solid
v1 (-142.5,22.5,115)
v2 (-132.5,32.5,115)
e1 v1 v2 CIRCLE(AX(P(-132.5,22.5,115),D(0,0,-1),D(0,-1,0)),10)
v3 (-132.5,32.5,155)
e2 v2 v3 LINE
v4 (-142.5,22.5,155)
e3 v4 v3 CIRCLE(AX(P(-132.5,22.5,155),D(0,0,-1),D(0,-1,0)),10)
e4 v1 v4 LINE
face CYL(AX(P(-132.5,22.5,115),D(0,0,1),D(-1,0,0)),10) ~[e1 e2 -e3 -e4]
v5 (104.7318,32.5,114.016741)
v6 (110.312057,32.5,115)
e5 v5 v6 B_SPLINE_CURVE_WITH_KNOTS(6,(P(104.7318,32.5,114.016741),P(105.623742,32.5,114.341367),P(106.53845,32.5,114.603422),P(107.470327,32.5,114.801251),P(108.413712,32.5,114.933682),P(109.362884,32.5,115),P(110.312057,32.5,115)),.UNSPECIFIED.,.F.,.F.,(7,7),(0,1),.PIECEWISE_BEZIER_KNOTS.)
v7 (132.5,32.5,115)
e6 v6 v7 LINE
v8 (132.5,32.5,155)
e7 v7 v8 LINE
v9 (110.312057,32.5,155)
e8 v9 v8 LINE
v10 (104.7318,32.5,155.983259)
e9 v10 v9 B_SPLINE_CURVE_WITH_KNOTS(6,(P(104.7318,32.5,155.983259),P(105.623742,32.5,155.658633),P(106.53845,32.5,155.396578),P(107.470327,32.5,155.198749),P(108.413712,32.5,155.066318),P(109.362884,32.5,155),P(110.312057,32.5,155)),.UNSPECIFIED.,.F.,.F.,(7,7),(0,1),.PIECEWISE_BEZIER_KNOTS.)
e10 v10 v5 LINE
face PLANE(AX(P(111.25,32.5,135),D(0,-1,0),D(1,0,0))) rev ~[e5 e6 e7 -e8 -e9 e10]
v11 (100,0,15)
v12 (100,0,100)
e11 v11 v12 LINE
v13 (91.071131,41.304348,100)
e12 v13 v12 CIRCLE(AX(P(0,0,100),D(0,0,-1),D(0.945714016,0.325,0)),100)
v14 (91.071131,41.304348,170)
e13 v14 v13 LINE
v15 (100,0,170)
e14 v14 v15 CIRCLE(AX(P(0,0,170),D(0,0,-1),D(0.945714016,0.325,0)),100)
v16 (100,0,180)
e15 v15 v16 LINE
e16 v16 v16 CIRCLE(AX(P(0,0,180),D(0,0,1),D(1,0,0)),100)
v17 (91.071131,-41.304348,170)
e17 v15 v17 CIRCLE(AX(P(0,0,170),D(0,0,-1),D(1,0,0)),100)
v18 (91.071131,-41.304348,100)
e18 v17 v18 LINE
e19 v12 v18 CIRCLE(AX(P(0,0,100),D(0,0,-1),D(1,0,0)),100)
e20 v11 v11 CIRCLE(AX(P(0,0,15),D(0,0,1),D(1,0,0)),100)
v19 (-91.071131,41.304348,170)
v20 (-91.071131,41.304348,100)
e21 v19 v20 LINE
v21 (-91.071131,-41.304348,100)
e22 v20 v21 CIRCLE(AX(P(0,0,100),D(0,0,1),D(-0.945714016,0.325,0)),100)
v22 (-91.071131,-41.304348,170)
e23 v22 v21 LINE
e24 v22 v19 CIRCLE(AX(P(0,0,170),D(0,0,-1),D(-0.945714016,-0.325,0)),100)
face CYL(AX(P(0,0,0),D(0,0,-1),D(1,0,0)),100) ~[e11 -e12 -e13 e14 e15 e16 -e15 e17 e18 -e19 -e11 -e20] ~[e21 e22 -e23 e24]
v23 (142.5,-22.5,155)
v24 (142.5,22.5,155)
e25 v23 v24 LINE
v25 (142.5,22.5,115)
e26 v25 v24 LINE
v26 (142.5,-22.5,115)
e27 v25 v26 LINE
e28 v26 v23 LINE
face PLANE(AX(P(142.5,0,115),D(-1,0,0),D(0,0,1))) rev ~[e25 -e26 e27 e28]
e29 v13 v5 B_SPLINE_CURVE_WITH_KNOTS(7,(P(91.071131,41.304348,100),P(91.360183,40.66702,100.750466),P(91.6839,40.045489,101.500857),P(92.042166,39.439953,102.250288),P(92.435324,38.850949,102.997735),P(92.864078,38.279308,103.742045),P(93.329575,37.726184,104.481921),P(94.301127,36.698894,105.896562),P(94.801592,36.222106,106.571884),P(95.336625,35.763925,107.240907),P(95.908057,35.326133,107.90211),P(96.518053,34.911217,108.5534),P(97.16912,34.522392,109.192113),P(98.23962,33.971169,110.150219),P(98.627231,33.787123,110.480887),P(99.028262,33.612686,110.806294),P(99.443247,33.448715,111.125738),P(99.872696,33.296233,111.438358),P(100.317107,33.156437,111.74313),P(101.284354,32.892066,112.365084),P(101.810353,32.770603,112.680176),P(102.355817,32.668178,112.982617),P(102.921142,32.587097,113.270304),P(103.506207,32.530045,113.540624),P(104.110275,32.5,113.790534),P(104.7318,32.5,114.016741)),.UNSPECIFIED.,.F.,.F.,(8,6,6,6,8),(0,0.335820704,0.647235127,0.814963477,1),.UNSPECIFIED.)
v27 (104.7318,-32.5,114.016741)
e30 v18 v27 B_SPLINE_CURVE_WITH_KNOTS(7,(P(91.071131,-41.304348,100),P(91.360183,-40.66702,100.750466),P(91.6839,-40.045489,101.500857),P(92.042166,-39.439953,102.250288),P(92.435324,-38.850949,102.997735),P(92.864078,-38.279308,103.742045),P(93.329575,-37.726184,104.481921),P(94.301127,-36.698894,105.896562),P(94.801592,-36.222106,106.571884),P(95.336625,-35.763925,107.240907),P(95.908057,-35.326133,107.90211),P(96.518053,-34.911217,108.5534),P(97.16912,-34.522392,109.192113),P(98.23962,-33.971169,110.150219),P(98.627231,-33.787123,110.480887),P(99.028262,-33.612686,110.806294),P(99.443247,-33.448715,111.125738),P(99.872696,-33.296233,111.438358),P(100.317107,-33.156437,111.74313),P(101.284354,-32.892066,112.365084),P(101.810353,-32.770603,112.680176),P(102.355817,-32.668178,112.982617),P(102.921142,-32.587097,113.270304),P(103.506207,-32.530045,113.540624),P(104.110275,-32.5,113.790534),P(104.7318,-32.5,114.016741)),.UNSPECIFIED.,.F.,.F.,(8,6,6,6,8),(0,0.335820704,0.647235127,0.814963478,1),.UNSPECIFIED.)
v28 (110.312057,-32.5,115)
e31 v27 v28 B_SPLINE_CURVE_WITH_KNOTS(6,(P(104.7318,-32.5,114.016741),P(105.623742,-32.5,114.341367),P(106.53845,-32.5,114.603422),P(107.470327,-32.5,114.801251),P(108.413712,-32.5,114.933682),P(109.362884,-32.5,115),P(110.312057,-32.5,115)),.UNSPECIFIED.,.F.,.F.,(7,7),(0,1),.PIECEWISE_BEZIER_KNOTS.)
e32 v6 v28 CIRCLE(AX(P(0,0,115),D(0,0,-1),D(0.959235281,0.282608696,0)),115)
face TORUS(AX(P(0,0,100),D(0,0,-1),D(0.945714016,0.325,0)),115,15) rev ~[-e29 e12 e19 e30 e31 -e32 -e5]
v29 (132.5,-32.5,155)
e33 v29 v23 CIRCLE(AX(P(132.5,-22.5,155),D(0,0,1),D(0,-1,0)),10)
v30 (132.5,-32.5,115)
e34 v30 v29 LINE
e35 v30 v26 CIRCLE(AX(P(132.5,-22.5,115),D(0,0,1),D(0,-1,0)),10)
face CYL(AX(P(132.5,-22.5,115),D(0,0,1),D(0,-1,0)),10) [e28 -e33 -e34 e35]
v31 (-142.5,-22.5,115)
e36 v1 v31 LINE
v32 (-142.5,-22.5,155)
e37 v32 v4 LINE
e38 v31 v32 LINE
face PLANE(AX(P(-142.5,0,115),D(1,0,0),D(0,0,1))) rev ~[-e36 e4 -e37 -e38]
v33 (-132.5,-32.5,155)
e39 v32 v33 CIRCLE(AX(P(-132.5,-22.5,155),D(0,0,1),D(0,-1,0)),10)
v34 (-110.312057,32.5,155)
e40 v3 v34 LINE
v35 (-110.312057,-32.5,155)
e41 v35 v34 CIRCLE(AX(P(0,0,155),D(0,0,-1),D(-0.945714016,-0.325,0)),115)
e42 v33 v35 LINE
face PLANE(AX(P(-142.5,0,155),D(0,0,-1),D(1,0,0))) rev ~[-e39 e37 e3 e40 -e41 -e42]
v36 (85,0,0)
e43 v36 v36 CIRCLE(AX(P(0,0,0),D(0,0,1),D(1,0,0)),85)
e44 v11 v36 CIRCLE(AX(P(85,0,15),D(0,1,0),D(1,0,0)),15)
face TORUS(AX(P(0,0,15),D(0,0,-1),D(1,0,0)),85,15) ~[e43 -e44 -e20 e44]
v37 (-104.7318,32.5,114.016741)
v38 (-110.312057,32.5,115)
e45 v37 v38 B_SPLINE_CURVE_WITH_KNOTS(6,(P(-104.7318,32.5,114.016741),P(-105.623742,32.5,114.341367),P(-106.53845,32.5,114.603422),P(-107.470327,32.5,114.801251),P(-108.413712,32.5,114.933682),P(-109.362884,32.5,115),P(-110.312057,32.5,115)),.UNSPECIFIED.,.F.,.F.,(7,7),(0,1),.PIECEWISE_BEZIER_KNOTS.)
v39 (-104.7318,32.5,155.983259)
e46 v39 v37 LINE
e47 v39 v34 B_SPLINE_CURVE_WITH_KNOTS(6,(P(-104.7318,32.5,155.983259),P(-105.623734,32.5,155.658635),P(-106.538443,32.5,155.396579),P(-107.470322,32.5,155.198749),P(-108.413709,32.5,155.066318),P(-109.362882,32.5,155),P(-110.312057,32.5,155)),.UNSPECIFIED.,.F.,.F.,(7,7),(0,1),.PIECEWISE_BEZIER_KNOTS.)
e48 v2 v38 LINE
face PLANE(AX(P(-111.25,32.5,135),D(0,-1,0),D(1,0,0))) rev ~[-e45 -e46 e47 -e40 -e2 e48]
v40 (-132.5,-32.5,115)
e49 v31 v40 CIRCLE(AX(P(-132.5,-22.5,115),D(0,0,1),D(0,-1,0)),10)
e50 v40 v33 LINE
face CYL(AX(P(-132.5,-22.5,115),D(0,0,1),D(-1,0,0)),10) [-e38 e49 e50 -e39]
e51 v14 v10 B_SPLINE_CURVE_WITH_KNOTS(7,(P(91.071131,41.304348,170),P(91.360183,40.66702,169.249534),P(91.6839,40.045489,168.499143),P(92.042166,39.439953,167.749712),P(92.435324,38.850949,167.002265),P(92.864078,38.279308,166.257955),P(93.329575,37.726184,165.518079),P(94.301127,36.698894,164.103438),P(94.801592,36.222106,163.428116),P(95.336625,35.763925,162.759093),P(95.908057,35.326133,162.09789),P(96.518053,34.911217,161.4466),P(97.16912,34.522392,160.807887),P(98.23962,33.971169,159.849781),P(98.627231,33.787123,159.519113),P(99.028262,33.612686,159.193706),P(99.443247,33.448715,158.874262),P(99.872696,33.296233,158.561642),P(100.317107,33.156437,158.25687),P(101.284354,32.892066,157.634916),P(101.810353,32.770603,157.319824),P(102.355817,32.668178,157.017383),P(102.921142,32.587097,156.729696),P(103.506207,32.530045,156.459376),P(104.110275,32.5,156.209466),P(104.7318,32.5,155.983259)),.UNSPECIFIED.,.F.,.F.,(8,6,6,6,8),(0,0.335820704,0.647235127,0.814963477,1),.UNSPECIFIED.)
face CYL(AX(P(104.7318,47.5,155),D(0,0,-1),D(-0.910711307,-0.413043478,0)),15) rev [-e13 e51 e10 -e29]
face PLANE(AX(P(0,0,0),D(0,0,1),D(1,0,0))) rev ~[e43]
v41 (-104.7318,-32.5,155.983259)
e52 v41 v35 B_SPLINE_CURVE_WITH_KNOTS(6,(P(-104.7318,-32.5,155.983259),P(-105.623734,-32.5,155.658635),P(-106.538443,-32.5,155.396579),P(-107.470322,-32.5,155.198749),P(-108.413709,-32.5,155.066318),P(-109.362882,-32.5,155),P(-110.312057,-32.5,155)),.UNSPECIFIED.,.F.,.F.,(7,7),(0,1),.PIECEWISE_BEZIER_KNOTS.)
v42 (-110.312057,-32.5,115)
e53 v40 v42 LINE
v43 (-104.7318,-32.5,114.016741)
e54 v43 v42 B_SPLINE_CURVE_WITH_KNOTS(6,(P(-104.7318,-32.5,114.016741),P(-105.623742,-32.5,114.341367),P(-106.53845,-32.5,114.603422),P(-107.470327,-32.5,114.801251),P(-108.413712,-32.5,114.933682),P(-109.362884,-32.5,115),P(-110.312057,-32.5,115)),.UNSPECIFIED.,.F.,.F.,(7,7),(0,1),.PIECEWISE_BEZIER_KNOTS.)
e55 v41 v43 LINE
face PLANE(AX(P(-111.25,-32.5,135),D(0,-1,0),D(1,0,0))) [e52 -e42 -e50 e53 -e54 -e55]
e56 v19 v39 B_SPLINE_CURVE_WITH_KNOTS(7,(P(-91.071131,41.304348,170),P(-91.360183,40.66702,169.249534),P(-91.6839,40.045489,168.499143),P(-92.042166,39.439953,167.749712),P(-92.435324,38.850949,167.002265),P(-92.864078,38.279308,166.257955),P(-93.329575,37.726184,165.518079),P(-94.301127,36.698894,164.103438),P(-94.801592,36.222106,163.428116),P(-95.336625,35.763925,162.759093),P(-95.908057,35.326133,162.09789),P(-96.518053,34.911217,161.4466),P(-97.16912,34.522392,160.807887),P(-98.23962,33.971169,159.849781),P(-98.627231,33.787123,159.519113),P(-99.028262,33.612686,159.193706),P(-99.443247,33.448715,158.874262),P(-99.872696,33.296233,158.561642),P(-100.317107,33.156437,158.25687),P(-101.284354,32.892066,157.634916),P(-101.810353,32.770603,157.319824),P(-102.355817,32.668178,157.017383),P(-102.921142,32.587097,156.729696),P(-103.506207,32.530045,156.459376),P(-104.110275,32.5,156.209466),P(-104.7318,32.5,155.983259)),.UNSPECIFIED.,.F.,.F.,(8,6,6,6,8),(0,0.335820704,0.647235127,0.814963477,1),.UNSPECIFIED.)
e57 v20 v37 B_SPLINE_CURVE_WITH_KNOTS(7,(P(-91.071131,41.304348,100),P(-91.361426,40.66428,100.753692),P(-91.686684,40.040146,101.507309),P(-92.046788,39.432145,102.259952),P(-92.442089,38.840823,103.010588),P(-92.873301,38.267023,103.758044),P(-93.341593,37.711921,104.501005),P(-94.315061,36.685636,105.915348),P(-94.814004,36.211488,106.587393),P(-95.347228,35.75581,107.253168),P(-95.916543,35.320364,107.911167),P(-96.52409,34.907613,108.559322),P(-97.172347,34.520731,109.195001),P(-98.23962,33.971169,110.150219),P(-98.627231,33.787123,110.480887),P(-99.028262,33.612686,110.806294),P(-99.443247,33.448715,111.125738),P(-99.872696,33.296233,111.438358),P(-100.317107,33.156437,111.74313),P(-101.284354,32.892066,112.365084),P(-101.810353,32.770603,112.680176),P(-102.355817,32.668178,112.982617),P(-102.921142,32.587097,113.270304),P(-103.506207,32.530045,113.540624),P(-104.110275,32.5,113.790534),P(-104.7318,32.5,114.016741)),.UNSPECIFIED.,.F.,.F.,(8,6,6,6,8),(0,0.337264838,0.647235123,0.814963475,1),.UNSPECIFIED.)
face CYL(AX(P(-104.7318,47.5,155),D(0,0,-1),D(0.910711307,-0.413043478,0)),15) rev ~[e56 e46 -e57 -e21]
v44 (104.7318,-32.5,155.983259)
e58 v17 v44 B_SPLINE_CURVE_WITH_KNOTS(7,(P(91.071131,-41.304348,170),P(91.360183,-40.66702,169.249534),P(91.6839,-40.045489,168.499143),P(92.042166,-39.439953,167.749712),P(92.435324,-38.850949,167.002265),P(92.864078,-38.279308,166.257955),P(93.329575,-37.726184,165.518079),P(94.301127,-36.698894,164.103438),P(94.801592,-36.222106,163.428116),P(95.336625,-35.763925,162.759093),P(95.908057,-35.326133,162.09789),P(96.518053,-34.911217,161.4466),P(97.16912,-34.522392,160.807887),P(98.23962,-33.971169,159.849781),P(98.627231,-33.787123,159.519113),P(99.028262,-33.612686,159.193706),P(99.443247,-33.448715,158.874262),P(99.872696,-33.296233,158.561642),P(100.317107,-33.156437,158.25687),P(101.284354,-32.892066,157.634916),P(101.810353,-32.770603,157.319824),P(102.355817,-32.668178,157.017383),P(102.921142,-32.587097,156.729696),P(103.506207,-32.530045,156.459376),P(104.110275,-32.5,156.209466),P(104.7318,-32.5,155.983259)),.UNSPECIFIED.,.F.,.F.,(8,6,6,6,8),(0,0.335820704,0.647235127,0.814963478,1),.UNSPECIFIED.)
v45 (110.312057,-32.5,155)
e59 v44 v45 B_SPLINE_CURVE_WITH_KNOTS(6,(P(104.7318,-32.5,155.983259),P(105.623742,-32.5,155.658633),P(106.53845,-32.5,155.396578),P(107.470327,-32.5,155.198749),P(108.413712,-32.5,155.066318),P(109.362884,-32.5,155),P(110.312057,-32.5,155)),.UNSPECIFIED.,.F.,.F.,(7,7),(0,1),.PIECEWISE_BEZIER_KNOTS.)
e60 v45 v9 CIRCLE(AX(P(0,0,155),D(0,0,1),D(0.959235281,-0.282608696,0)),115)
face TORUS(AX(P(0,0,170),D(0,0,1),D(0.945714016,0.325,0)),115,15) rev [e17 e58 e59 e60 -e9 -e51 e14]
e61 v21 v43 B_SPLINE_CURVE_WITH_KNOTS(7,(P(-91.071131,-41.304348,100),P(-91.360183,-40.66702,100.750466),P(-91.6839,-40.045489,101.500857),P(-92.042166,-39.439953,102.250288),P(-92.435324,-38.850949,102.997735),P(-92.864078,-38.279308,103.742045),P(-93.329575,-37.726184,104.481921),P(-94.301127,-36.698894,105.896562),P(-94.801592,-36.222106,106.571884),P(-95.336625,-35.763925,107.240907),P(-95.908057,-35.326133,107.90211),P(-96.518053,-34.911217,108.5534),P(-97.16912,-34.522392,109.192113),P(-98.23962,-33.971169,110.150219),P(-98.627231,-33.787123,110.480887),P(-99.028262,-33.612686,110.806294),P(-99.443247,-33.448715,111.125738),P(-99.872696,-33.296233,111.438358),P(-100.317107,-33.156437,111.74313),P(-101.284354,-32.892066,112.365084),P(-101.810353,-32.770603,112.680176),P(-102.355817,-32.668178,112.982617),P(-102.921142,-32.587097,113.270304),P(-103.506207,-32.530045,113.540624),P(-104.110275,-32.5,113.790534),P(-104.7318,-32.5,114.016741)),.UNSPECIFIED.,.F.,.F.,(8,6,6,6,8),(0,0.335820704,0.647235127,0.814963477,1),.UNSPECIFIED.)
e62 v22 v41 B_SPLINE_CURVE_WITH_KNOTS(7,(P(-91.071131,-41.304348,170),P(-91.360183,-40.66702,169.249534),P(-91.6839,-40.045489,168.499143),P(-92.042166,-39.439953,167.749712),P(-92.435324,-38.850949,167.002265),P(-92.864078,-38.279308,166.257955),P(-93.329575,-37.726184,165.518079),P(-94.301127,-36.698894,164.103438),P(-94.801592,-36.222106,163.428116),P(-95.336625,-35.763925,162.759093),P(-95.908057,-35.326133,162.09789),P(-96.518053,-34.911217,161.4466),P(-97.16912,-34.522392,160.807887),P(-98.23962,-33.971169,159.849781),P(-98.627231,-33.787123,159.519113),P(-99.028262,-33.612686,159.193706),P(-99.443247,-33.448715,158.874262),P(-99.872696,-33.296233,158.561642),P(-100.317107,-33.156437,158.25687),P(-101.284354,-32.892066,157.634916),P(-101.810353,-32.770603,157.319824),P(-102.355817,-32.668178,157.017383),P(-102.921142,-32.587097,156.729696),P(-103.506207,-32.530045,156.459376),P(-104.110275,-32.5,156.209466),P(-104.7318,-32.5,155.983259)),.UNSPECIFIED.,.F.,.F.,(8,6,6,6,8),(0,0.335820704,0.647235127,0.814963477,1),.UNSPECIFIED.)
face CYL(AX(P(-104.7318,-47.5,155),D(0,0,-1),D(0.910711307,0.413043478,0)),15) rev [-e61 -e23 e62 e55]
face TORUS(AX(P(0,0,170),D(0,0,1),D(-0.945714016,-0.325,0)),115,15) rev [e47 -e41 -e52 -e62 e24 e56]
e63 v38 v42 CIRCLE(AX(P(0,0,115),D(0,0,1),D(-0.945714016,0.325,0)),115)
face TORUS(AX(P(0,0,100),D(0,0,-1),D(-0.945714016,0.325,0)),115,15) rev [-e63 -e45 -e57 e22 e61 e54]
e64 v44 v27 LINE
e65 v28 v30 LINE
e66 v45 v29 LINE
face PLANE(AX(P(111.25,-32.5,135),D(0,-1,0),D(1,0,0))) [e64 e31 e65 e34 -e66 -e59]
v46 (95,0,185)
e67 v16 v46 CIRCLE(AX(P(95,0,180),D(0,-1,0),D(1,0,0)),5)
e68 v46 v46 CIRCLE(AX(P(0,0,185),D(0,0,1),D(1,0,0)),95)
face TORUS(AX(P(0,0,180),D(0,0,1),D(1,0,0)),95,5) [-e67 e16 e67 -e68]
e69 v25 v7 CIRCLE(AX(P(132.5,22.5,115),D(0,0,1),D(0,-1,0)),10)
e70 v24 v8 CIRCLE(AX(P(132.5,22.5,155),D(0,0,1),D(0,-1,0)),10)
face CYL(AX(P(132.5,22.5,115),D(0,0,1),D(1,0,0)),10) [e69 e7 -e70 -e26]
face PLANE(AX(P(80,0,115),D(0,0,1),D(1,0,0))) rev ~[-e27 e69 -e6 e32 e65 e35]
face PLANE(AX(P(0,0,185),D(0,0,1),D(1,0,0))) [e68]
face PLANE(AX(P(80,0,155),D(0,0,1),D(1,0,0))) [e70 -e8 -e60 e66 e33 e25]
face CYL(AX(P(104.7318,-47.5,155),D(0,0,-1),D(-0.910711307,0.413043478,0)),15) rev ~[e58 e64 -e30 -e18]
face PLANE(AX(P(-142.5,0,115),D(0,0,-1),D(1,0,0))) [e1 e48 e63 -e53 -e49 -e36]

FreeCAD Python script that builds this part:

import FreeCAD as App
import Part
import Sketcher


def edges_at(feature, points):
    """Names of the edges that pass closest to the given points."""
    edges = feature.Shape.Edges
    near = lambda p: min(range(len(edges)), key=lambda i: edges[i].distToShape(Part.Vertex(*p))[0])
    return sorted({f"Edge{near(p) + 1}" for p in points})

doc = App.newDocument("Part")
body = doc.addObject("PartDesign::Body", "Body")

# Sketch on XY plane
sketch1 = doc.addObject("Sketcher::SketchObject", "Sketch")
body.addObject(sketch1)
sketch1.AttachmentSupport = (doc.XY_Plane, [""])
sketch1.MapMode = "FlatFace"
sketch1.addGeometry(Part.Circle(App.Vector(0, 0, 0), App.Vector(0, 0, 1), 100), False)
sketch1.addConstraint([
    Sketcher.Constraint("Coincident", 0, 3, -1, 1),
    Sketcher.Constraint("Diameter", 0, 200.0),
])
pad1 = doc.addObject("PartDesign::Pad", "Pad")
body.addObject(pad1)
pad1.Profile = sketch1
pad1.Length = 185

# Sketch on XZ plane
sketch2 = doc.addObject("Sketcher::SketchObject", "Sketch001")
body.addObject(sketch2)
sketch2.AttachmentSupport = (doc.XZ_Plane, [""])
sketch2.MapMode = "FlatFace"
sketch2.addGeometry([
    Part.LineSegment(App.Vector(-142, 155, 0), App.Vector(-142, 115, 0)),  # 0
    Part.LineSegment(App.Vector(-142, 115, 0), App.Vector(-80, 115, 0)),  # 1
    Part.LineSegment(App.Vector(-80, 115, 0), App.Vector(-80, 155, 0)),  # 2
    Part.LineSegment(App.Vector(-80, 155, 0), App.Vector(-142, 155, 0)),  # 3
    Part.LineSegment(App.Vector(80, 155, 0), App.Vector(80, 115, 0)),  # 4
    Part.LineSegment(App.Vector(80, 115, 0), App.Vector(142, 115, 0)),  # 5
    Part.LineSegment(App.Vector(142, 115, 0), App.Vector(142, 155, 0)),  # 6
    Part.LineSegment(App.Vector(142, 155, 0), App.Vector(80, 155, 0)),  # 7
], False)
sketch2.addConstraint([
    Sketcher.Constraint("Coincident", 0, 2, 1, 1),
    Sketcher.Constraint("Coincident", 1, 2, 2, 1),
    Sketcher.Constraint("Coincident", 2, 2, 3, 1),
    Sketcher.Constraint("Coincident", 3, 2, 0, 1),
    Sketcher.Constraint("Coincident", 4, 2, 5, 1),
    Sketcher.Constraint("Coincident", 5, 2, 6, 1),
    Sketcher.Constraint("Coincident", 6, 2, 7, 1),
    Sketcher.Constraint("Coincident", 7, 2, 4, 1),
    Sketcher.Constraint("Vertical", 0),
    Sketcher.Constraint("Horizontal", 1),
    Sketcher.Constraint("Vertical", 2),
    Sketcher.Constraint("Horizontal", 3),
    Sketcher.Constraint("Vertical", 4),
    Sketcher.Constraint("Horizontal", 5),
    Sketcher.Constraint("Vertical", 6),
    Sketcher.Constraint("Horizontal", 7),
    Sketcher.Constraint("Symmetric", 1, 2, 4, 2, -2),
    Sketcher.Constraint("Symmetric", 3, 2, 6, 2, -2),
    Sketcher.Constraint("DistanceY", 0, 2, 0, 1, 40.0),
    Sketcher.Constraint("DistanceX", 1, 1, 1, 2, 62.5),
    Sketcher.Constraint("DistanceY", -1, 1, 0, 2, 115.0),
    Sketcher.Constraint("DistanceX", 1, 2, -1, 1, 80.0),
])
pad2 = doc.addObject("PartDesign::Pad", "Pad001")
body.addObject(pad2)
pad2.Profile = sketch2
pad2.Type = "TwoLengths"
pad2.Length = 32.5
pad2.Length2 = 32.5
doc.recompute()

fillet = doc.addObject("PartDesign::Fillet", "Fillet")
body.addObject(fillet)
fillet.Base = (pad2, edges_at(pad2, [
    (-142.5, -32.5, 135),
    (-142.5, 32.5, 135),
    (142.5, -32.5, 135),
    (142.5, 32.5, 135),
]))
fillet.Radius = 10
doc.recompute()

fillet2 = doc.addObject("PartDesign::Fillet", "Fillet001")
body.addObject(fillet2)
fillet2.Base = (fillet, edges_at(fillet, [(-100, 0, 185)]))
fillet2.Radius = 5
doc.recompute()

fillet3 = doc.addObject("PartDesign::Fillet", "Fillet002")
body.addObject(fillet3)
fillet3.Base = (fillet2, edges_at(fillet2, [
    (100, 0, 167.5),
    (-100, 0, 180),
    (98.634, -16.475, 155),
    (94.571, -32.5, 135),
    (98.634, 16.475, 155),
    (98.634, -16.475, 115),
    (94.571, 32.5, 135),
    (100, 0, 57.5),
    (98.634, 16.475, 115),
    (-100, 0, 0),
    (-94.571, -32.5, 135),
    (-100, 0, 115),
    (-94.571, 32.5, 135),
    (-100, 0, 155),
]))
fillet3.Radius = 15

doc.recompute()
